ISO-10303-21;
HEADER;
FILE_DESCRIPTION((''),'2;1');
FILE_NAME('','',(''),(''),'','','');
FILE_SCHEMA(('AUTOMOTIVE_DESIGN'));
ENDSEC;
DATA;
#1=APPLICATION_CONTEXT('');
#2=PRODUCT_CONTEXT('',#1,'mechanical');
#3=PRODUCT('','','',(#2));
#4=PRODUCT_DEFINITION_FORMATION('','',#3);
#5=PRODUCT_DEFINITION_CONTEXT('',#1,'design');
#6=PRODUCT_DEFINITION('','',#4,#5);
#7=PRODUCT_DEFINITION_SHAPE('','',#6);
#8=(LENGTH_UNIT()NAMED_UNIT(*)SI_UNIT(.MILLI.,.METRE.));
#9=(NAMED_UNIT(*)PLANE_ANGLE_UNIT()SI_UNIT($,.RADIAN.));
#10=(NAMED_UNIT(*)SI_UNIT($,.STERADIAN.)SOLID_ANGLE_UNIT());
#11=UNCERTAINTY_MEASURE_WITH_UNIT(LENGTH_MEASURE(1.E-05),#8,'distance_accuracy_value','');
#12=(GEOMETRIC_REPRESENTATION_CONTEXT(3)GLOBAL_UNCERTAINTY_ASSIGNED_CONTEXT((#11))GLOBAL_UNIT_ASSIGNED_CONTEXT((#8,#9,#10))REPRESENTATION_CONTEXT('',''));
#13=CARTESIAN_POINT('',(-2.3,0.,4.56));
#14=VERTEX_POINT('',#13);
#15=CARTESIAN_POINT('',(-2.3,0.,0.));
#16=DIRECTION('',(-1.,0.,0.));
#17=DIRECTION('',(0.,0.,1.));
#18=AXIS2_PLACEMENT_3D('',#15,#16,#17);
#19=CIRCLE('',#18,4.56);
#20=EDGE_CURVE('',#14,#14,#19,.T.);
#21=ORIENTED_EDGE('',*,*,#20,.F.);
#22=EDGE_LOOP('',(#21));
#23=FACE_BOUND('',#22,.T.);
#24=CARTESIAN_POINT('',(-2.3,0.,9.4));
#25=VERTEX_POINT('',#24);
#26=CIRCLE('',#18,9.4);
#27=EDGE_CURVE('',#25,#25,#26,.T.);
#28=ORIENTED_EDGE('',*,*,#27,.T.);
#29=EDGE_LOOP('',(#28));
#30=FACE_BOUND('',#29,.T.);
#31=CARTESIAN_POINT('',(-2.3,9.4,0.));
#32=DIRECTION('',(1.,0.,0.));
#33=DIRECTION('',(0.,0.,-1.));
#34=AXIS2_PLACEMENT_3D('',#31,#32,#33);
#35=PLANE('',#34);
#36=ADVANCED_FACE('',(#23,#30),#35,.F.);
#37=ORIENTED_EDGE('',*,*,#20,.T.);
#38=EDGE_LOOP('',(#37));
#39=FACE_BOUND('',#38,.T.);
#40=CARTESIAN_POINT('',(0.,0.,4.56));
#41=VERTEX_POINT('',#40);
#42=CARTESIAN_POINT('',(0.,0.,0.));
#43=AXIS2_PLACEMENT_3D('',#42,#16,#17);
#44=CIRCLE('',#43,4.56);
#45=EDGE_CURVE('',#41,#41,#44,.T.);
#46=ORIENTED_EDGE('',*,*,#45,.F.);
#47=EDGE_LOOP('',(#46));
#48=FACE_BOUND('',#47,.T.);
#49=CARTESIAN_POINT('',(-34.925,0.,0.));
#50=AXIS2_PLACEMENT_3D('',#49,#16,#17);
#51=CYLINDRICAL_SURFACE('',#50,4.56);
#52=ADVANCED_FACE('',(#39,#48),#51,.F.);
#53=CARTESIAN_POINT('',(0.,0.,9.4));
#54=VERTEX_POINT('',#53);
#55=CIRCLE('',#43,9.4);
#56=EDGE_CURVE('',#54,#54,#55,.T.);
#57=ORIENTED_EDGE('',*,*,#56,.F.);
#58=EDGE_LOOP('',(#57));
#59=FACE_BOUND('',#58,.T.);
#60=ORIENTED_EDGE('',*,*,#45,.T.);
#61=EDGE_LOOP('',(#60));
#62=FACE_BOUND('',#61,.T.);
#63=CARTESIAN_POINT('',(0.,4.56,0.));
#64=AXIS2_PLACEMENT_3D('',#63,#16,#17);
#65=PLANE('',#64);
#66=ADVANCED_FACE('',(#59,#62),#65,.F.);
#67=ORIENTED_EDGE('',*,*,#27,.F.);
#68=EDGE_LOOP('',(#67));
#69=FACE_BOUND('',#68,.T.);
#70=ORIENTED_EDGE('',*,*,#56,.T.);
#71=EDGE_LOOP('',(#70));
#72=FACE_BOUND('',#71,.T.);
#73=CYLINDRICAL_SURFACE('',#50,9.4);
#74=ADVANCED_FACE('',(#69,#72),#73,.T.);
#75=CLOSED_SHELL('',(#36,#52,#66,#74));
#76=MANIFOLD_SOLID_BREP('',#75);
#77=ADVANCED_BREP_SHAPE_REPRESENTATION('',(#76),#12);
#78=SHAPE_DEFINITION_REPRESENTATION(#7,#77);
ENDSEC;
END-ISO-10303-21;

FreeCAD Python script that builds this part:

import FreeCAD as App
import Part
import Sketcher

V = App.Vector


def add_polygon(sketch, points):
    """Adds a closed chain of lines whose ends are joined by coincident constraints."""
    first, n = sketch.GeometryCount, len(points)
    for a, b in zip(points, points[1:] + points[:1]):
        sketch.addGeometry(Part.LineSegment(App.Vector(*a, 0), App.Vector(*b, 0)), False)
    for i in range(n):
        sketch.addConstraint(Sketcher.Constraint("Coincident", first + i, 2, first + (i + 1) % n, 1))

doc = App.newDocument("Part")
body = doc.addObject("PartDesign::Body", "Body")

# Sketch on XY plane
sketch1 = doc.addObject("Sketcher::SketchObject", "Sketch")
body.addObject(sketch1)
sketch1.AttachmentSupport = (doc.XY_Plane, [""])
sketch1.MapMode = "FlatFace"
add_polygon(sketch1, [(-2.3, 9.4), (-2.3, 4.6), (0, 4.6), (0, 9.4)])  # lines 0-3
sketch1.addConstraint([
    Sketcher.Constraint("Vertical", 0),
    Sketcher.Constraint("Horizontal", 1),
    Sketcher.Constraint("Vertical", 2),
    Sketcher.Constraint("Horizontal", 3),
    Sketcher.Constraint("PointOnObject", 1, 2, -2),
    Sketcher.Constraint("DistanceX", 1, 1, 1, 2, 2.3),
    Sketcher.Constraint("DistanceY", 0, 2, 0, 1, 4.84),
    Sketcher.Constraint("DistanceY", -1, 1, 2, 2, 9.4),
])
revolution = doc.addObject("PartDesign::Revolution", "Revolution")
body.addObject(revolution)
revolution.Profile = sketch1
revolution.ReferenceAxis = (sketch1, ["H_Axis"])
revolution.Angle = 360

doc.recompute()
